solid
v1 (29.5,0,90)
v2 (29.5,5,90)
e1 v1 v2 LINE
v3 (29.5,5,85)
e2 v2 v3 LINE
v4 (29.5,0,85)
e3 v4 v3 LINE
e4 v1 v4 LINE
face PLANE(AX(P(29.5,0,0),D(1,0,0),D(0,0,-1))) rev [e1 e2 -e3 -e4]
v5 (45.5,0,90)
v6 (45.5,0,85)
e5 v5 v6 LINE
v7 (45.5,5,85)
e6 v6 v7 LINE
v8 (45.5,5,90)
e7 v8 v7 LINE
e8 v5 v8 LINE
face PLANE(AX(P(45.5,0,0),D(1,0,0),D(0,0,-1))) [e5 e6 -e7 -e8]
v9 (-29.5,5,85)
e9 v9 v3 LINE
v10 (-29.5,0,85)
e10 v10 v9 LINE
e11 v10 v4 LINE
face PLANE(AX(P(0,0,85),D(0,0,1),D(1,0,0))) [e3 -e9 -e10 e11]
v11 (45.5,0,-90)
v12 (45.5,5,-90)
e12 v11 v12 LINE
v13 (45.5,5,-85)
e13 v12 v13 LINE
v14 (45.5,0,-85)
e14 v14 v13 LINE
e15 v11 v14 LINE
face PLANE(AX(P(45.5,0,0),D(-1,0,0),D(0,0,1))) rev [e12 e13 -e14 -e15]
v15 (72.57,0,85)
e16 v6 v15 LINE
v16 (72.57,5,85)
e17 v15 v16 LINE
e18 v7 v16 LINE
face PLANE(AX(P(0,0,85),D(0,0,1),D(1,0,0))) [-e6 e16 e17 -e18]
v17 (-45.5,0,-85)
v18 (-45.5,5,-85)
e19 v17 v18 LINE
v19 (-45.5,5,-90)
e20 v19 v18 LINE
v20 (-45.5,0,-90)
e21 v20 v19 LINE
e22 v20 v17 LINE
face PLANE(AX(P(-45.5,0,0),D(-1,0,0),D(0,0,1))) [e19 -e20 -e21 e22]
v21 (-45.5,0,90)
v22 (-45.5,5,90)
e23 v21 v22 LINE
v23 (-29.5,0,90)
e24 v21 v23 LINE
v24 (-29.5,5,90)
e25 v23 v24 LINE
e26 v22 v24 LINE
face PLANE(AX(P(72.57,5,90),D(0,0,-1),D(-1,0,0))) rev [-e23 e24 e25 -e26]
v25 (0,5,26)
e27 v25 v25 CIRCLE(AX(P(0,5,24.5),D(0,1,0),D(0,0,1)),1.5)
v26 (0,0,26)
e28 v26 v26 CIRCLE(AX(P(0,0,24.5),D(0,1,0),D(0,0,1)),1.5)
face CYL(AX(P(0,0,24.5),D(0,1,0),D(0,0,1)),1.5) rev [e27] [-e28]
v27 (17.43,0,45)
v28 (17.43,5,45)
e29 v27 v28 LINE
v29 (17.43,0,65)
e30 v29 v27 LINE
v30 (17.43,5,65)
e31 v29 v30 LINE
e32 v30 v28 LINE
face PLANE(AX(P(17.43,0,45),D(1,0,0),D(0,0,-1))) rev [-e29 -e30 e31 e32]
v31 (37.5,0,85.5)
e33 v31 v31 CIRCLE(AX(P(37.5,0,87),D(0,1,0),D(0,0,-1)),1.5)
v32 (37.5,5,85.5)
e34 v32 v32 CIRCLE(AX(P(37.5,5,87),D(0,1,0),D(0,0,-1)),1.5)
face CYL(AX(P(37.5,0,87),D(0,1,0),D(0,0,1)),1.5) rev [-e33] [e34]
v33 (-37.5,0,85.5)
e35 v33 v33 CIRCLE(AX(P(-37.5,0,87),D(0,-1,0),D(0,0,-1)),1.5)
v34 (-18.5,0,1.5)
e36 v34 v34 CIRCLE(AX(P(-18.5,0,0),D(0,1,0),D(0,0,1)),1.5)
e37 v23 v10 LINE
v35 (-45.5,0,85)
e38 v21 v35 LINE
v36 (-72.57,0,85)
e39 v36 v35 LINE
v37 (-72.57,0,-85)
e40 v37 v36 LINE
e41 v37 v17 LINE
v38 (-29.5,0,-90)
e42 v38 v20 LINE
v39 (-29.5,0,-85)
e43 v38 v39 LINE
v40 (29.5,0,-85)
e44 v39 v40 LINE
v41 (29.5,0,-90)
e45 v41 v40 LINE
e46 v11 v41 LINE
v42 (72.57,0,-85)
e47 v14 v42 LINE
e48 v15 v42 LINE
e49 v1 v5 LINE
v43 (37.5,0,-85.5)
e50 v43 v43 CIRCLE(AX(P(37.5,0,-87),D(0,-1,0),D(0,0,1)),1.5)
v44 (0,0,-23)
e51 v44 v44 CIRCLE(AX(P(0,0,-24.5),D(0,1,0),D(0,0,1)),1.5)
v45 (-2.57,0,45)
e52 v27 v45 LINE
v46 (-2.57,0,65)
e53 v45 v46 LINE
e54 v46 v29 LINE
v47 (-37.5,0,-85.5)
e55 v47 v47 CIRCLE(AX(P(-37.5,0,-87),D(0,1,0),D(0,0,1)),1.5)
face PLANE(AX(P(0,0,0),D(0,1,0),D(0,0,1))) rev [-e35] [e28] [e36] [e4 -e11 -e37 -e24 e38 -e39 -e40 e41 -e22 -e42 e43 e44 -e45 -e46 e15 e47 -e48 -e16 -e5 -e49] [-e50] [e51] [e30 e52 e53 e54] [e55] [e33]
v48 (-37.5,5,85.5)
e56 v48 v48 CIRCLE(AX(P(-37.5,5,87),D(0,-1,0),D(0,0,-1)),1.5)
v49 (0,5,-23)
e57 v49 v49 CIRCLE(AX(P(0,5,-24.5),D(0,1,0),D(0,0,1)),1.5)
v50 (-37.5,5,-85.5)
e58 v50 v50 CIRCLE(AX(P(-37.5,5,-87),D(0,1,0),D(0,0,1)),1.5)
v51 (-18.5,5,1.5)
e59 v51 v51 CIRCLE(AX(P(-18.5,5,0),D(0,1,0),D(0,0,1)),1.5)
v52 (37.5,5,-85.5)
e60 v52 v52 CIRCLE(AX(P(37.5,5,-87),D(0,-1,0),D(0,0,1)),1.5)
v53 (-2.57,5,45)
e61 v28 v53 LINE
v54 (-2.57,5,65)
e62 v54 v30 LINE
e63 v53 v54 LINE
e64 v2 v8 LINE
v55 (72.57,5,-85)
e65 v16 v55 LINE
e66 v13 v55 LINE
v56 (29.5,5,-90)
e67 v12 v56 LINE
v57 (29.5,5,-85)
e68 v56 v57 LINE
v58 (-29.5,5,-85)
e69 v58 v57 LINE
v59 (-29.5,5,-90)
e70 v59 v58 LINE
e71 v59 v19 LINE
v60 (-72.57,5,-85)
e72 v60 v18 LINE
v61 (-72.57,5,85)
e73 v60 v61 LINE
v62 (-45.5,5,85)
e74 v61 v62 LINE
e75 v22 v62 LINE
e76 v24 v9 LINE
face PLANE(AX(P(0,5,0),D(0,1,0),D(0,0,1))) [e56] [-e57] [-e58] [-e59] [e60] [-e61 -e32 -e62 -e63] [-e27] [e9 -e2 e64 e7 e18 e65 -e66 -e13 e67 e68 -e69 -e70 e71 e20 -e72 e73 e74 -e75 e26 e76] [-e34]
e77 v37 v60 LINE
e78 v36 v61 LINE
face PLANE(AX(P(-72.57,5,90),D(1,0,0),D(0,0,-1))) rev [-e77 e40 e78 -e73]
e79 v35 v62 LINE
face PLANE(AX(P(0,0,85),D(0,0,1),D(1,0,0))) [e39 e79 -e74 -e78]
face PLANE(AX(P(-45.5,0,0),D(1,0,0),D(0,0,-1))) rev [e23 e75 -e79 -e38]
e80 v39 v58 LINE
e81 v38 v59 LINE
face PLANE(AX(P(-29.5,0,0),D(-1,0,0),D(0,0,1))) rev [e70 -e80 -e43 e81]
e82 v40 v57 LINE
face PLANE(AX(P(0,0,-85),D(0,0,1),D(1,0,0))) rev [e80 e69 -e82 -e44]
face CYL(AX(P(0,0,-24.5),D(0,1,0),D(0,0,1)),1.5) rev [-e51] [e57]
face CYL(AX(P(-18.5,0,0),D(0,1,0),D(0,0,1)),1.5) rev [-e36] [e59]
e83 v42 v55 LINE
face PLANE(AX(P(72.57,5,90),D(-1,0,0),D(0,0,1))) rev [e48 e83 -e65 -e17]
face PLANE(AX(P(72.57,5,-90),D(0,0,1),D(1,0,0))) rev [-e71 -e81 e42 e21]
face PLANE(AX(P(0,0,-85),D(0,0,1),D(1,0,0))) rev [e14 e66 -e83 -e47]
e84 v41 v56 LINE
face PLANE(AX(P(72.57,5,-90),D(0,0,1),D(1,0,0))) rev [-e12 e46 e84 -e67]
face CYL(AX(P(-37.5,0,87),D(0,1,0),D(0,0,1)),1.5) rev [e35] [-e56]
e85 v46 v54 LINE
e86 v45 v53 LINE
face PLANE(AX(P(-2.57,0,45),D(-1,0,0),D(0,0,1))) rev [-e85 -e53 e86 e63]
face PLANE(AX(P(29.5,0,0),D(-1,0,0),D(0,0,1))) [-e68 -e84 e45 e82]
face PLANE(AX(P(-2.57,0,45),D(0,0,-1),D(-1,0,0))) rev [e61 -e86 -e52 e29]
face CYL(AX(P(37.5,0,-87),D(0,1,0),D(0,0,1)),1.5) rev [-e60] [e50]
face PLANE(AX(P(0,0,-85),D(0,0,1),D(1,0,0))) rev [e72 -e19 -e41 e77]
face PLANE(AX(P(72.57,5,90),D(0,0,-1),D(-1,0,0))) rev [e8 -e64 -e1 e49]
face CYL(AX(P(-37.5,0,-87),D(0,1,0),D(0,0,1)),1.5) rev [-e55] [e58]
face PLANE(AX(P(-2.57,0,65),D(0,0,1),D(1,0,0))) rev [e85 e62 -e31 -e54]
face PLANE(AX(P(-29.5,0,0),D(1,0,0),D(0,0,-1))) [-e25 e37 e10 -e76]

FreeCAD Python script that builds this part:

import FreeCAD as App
import Part
import Sketcher
from FreeCAD import Vector
Q = App.Units.Quantity

doc = App.newDocument("Part")
body = doc.addObject("PartDesign::Body", "Body")

# Sketch on XZ plane
sketch1 = body.newObject("Sketcher::SketchObject", "Sketch")
sketch1.AttachmentSupport = (doc.getObject("XZ_Plane"), [""])
sketch1.MapMode = "FlatFace"
sketch1.addGeometry(Part.LineSegment(Vector(-73, -90, 0), Vector(-73, 90, 0)), False)
sketch1.addGeometry(Part.LineSegment(Vector(-73, 90, 0), Vector(73, 90, 0)), False)
sketch1.addGeometry(Part.LineSegment(Vector(73, 90, 0), Vector(73, -90, 0)), False)
sketch1.addGeometry(Part.LineSegment(Vector(73, -90, 0), Vector(-73, -90, 0)), False)
sketch1.addConstraint(Sketcher.Constraint("Coincident", 0, 2, 1, 1))
sketch1.addConstraint(Sketcher.Constraint("Coincident", 1, 2, 2, 1))
sketch1.addConstraint(Sketcher.Constraint("Coincident", 2, 2, 3, 1))
sketch1.addConstraint(Sketcher.Constraint("Coincident", 3, 2, 0, 1))
sketch1.addConstraint(Sketcher.Constraint("Vertical", 0))
sketch1.addConstraint(Sketcher.Constraint("Horizontal", 1))
sketch1.addConstraint(Sketcher.Constraint("Vertical", 2))
sketch1.addConstraint(Sketcher.Constraint("Horizontal", 3))
sketch1.addConstraint(Sketcher.Constraint("Symmetric", 0, 2, 2, 2, -1, 1))
sketch1.addConstraint(Sketcher.Constraint("DistanceY", 0, 1, 0, 2, Q("180 mm")))
sketch1.addConstraint(Sketcher.Constraint("DistanceX", 1, 1, 1, 2, Q("145.14 mm")))
pad1 = body.newObject("PartDesign::Pad", "Pad")
pad1.Profile = sketch1
pad1.Length = 5
pad1.Reversed = True

# Sketch on XZ plane
sketch2 = body.newObject("Sketcher::SketchObject", "Sketch001")
sketch2.AttachmentSupport = (doc.getObject("XZ_Plane"), [""])
sketch2.MapMode = "FlatFace"
sketch2.AttachmentOffset = App.Placement(Vector(0, 0, -5), App.Rotation())
sketch2.addGeometry(Part.LineSegment(Vector(-30, -90, 0), Vector(-30, -85, 0)), False)
sketch2.addGeometry(Part.LineSegment(Vector(-30, -85, 0), Vector(30, -85, 0)), False)
sketch2.addGeometry(Part.LineSegment(Vector(30, -85, 0), Vector(30, -90, 0)), False)
sketch2.addGeometry(Part.LineSegment(Vector(30, -90, 0), Vector(-30, -90, 0)), False)
sketch2.addGeometry(Part.LineSegment(Vector(-73, -90, 0), Vector(-73, -85, 0)), False)
sketch2.addGeometry(Part.LineSegment(Vector(-73, -85, 0), Vector(-46, -85, 0)), False)
sketch2.addGeometry(Part.LineSegment(Vector(-46, -85, 0), Vector(-46, -90, 0)), False)
sketch2.addGeometry(Part.LineSegment(Vector(-46, -90, 0), Vector(-73, -90, 0)), False)
sketch2.addGeometry(Part.LineSegment(Vector(46, -90, 0), Vector(46, -85, 0)), False)
sketch2.addGeometry(Part.LineSegment(Vector(46, -85, 0), Vector(73, -85, 0)), False)
sketch2.addGeometry(Part.LineSegment(Vector(73, -85, 0), Vector(73, -90, 0)), False)
sketch2.addGeometry(Part.LineSegment(Vector(73, -90, 0), Vector(46, -90, 0)), False)
sketch2.addConstraint(Sketcher.Constraint("Coincident", 0, 2, 1, 1))
sketch2.addConstraint(Sketcher.Constraint("Coincident", 1, 2, 2, 1))
sketch2.addConstraint(Sketcher.Constraint("Coincident", 2, 2, 3, 1))
sketch2.addConstraint(Sketcher.Constraint("Coincident", 3, 2, 0, 1))
sketch2.addConstraint(Sketcher.Constraint("Coincident", 4, 2, 5, 1))
sketch2.addConstraint(Sketcher.Constraint("Coincident", 5, 2, 6, 1))
sketch2.addConstraint(Sketcher.Constraint("Coincident", 6, 2, 7, 1))
sketch2.addConstraint(Sketcher.Constraint("Coincident", 7, 2, 4, 1))
sketch2.addConstraint(Sketcher.Constraint("Coincident", 8, 2, 9, 1))
sketch2.addConstraint(Sketcher.Constraint("Coincident", 9, 2, 10, 1))
sketch2.addConstraint(Sketcher.Constraint("Coincident", 10, 2, 11, 1))
sketch2.addConstraint(Sketcher.Constraint("Coincident", 11, 2, 8, 1))
sketch2.addConstraint(Sketcher.Constraint("Vertical", 0))
sketch2.addConstraint(Sketcher.Constraint("Horizontal", 1))
sketch2.addConstraint(Sketcher.Constraint("Vertical", 2))
sketch2.addConstraint(Sketcher.Constraint("Horizontal", 3))
sketch2.addConstraint(Sketcher.Constraint("Vertical", 4))
sketch2.addConstraint(Sketcher.Constraint("Horizontal", 5))
sketch2.addConstraint(Sketcher.Constraint("Vertical", 6))
sketch2.addConstraint(Sketcher.Constraint("Horizontal", 7))
sketch2.addConstraint(Sketcher.Constraint("Vertical", 8))
sketch2.addConstraint(Sketcher.Constraint("Horizontal", 9))
sketch2.addConstraint(Sketcher.Constraint("Vertical", 10))
sketch2.addConstraint(Sketcher.Constraint("Horizontal", 11))
sketch2.addConstraint(Sketcher.Constraint("Symmetric", 5, 2, 8, 2, -2))
sketch2.addConstraint(Sketcher.Constraint("Symmetric", 7, 2, 10, 2, -2))
sketch2.addConstraint(Sketcher.Constraint("Horizontal", 1, 2, 4, 2))
sketch2.addConstraint(Sketcher.Constraint("Horizontal", 3, 2, 6, 2))
sketch2.addConstraint(Sketcher.Constraint("DistanceX", 1, 1, 1, 2, Q("59 mm")))
sketch2.addConstraint(Sketcher.Constraint("DistanceY", 0, 1, 0, 2, Q("5 mm")))
sketch2.addConstraint(Sketcher.Constraint("DistanceY", 0, 2, -1, 1, Q("85 mm")))
sketch2.addConstraint(Sketcher.Constraint("DistanceX", 5, 2, 0, 2, Q("16 mm")))
sketch2.addConstraint(Sketcher.Constraint("DistanceX", 1, 2, 8, 2, Q("16 mm")))
sketch2.addConstraint(Sketcher.Constraint("DistanceX", 5, 1, 5, 2, Q("27.07 mm")))
pocket1 = body.newObject("PartDesign::Pocket", "Pocket")
pocket1.Profile = sketch2
pocket1.Type = "ThroughAll"
pocket1.Reversed = True
doc.recompute()

mirrored = body.newObject("PartDesign::Mirrored", "Mirrored")
mirrored.Originals = [pocket1]
mirrored.MirrorPlane = (doc.getObject("XY_Plane"), [""])
body.Tip = mirrored

# Sketch on XZ plane
sketch3 = body.newObject("Sketcher::SketchObject", "Sketch002")
sketch3.AttachmentSupport = (doc.getObject("XZ_Plane"), [""])
sketch3.MapMode = "FlatFace"
sketch3.AttachmentOffset = App.Placement(Vector(0, 0, -5), App.Rotation())
sketch3.addGeometry(Part.Circle(Vector(-37.5, -87, 0), Vector(0, 0, 1), 1.5), False)
sketch3.addConstraint(Sketcher.Constraint("Diameter", 0, Q("3 mm")))
sketch3.addConstraint(Sketcher.Constraint("DistanceY", 0, 3, -1, 1, Q("87 mm")))
sketch3.addConstraint(Sketcher.Constraint("DistanceX", 0, 3, -1, 1, Q("37.5 mm")))
pocket2 = body.newObject("PartDesign::Pocket", "Pocket001")
pocket2.Profile = sketch3
pocket2.Type = "ThroughAll"
pocket2.Reversed = True
doc.recompute()

mirrored2 = body.newObject("PartDesign::Mirrored", "Mirrored001")
mirrored2.Originals = [pocket2]
mirrored2.MirrorPlane = (doc.getObject("YZ_Plane"), [""])
body.Tip = mirrored2
doc.recompute()

mirrored3 = body.newObject("PartDesign::Mirrored", "Mirrored002")
mirrored3.Originals = [pocket2]
mirrored3.MirrorPlane = (doc.getObject("XY_Plane"), [""])
body.Tip = mirrored3

# Sketch on XZ plane
sketch4 = body.newObject("Sketcher::SketchObject", "Sketch003")
sketch4.AttachmentSupport = (doc.getObject("XZ_Plane"), [""])
sketch4.MapMode = "FlatFace"
sketch4.AttachmentOffset = App.Placement(Vector(0, 0, -5), App.Rotation())
sketch4.addGeometry(Part.Circle(Vector(37.5, 87, 0), Vector(0, 0, 1), 1.5), False)
sketch4.addConstraint(Sketcher.Constraint("Diameter", 0, Q("3 mm")))
sketch4.addConstraint(Sketcher.Constraint("DistanceY", -1, 1, 0, 3, Q("87 mm")))
sketch4.addConstraint(Sketcher.Constraint("DistanceX", -1, 1, 0, 3, Q("37.5 mm")))
pocket3 = body.newObject("PartDesign::Pocket", "Pocket002")
pocket3.Profile = sketch4
pocket3.Type = "ThroughAll"
pocket3.Reversed = True

# Sketch on XZ plane
sketch5 = body.newObject("Sketcher::SketchObject", "Sketch004")
sketch5.AttachmentSupport = (doc.getObject("XZ_Plane"), [""])
sketch5.MapMode = "FlatFace"
sketch5.AttachmentOffset = App.Placement(Vector(0, 0, -5), App.Rotation())
sketch5.addGeometry(Part.Circle(Vector(0, -24.5, 0), Vector(0, 0, 1), 1.5), False)
sketch5.addGeometry(Part.Circle(Vector(0, 24.5, 0), Vector(0, 0, 1), 1.5), False)
sketch5.addGeometry(Part.Circle(Vector(-18.5, 0, 0), Vector(0, 0, 1), 1.5), False)
sketch5.addConstraint(Sketcher.Constraint("Equal", 0, 1))
sketch5.addConstraint(Sketcher.Constraint("Equal", 1, 2))
sketch5.addConstraint(Sketcher.Constraint("Symmetric", 0, 3, 1, 3, -1, 1))
sketch5.addConstraint(Sketcher.Constraint("PointOnObject", 0, 3, -2))
sketch5.addConstraint(Sketcher.Constraint("PointOnObject", 2, 3, -1))
sketch5.addConstraint(Sketcher.Constraint("Diameter", 0, Q("3 mm")))
sketch5.addConstraint(Sketcher.Constraint("DistanceY", 0, 3, 1, 3, Q("49 mm")))
sketch5.addConstraint(Sketcher.Constraint("DistanceX", 2, 3, -1, 1, Q("18.5 mm")))
pocket4 = body.newObject("PartDesign::Pocket", "Pocket003")
pocket4.Profile = sketch5
pocket4.Type = "ThroughAll"
pocket4.Reversed = True

# Sketch on XZ plane
sketch6 = body.newObject("Sketcher::SketchObject", "Sketch005")
sketch6.AttachmentSupport = (doc.getObject("XZ_Plane"), [""])
sketch6.MapMode = "FlatFace"
sketch6.AttachmentOffset = App.Placement(Vector(0, 0, -5), App.Rotation())
sketch6.addGeometry(Part.LineSegment(Vector(-3, 45, 0), Vector(-3, 65, 0)), False)
sketch6.addGeometry(Part.LineSegment(Vector(-3, 65, 0), Vector(17, 65, 0)), False)
sketch6.addGeometry(Part.LineSegment(Vector(17, 65, 0), Vector(17, 45, 0)), False)
sketch6.addGeometry(Part.LineSegment(Vector(17, 45, 0), Vector(-3, 45, 0)), False)
sketch6.addConstraint(Sketcher.Constraint("Coincident", 0, 2, 1, 1))
sketch6.addConstraint(Sketcher.Constraint("Coincident", 1, 2, 2, 1))
sketch6.addConstraint(Sketcher.Constraint("Coincident", 2, 2, 3, 1))
sketch6.addConstraint(Sketcher.Constraint("Coincident", 3, 2, 0, 1))
sketch6.addConstraint(Sketcher.Constraint("Vertical", 0))
sketch6.addConstraint(Sketcher.Constraint("Horizontal", 1))
sketch6.addConstraint(Sketcher.Constraint("Vertical", 2))
sketch6.addConstraint(Sketcher.Constraint("Horizontal", 3))
sketch6.addConstraint(Sketcher.Constraint("Equal", 3, 0))
sketch6.addConstraint(Sketcher.Constraint("DistanceX", 1, 1, 1, 2, Q("20 mm")))
sketch6.addConstraint(Sketcher.Constraint("DistanceY", -1, 1, 0, 2, Q("65 mm")))
sketch6.addConstraint(Sketcher.Constraint("DistanceX", 0, 2, -1, 1, Q("2.57 mm")))
pocket5 = body.newObject("PartDesign::Pocket", "Pocket004")
pocket5.Profile = sketch6
pocket5.Type = "ThroughAll"
pocket5.Reversed = True

doc.recompute()
